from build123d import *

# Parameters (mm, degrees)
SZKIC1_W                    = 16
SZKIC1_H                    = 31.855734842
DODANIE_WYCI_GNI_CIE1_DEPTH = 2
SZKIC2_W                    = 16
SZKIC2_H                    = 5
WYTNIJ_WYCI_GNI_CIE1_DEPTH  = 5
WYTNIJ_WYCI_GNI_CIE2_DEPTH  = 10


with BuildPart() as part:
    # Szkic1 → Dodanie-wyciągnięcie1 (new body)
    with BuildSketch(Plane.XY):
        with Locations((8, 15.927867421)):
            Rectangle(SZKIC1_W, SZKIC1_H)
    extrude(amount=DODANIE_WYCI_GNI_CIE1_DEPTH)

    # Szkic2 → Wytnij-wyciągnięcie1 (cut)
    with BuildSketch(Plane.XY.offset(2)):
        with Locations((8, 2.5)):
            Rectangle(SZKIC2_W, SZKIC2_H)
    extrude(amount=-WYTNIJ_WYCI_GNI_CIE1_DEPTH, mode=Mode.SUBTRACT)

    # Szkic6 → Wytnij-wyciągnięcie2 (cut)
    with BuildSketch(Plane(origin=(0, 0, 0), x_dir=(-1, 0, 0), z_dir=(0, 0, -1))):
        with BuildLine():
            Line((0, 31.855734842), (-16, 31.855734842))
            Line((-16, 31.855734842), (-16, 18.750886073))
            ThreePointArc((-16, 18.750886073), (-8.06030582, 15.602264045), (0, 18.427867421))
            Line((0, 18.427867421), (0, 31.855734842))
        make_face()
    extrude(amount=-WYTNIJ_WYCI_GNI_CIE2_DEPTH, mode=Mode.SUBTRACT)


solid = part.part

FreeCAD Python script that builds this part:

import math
import FreeCAD as App
import Part
import Sketcher

V = App.Vector
Q = App.Units.Quantity

doc = App.newDocument("Part")
body = doc.addObject("PartDesign::Body", "Body")

# Sketch on XY plane
sketch1 = body.newObject("Sketcher::SketchObject", "Sketch")
sketch1.AttachmentSupport = (doc.getObject("XY_Plane"), [""])
sketch1.MapMode = "FlatFace"
sketch1.addGeometry([
    Part.LineSegment(V(0, 31.855735, 0), V(0, 0, 0)),
    Part.LineSegment(V(0, 0, 0), V(16, 0, 0)),
    Part.LineSegment(V(16, 0, 0), V(16, 31.855735, 0)),
    Part.LineSegment(V(16, 31.855735, 0), V(0, 31.855735, 0)),
], False)
sketch1.addConstraint([
    Sketcher.Constraint("Coincident", 0, 2, 1, 1),
    Sketcher.Constraint("Coincident", 1, 2, 2, 1),
    Sketcher.Constraint("Coincident", 2, 2, 3, 1),
    Sketcher.Constraint("Coincident", 3, 2, 0, 1),
    Sketcher.Constraint("Vertical", 0),
    Sketcher.Constraint("Horizontal", 1),
    Sketcher.Constraint("Vertical", 2),
    Sketcher.Constraint("Horizontal", 3),
    Sketcher.Constraint("Coincident", 0, 2, -1, 1),
    Sketcher.Constraint("DistanceX", 1, 1, 1, 2, Q("16 mm")),
    Sketcher.Constraint("DistanceY", 0, 2, 0, 1, Q("31.855735 mm")),
])
pad1 = body.newObject("PartDesign::Pad", "Pad")
pad1.Profile = sketch1
pad1.Length = 2

# Sketch on XY plane
sketch2 = body.newObject("Sketcher::SketchObject", "Sketch001")
sketch2.AttachmentSupport = (doc.getObject("XY_Plane"), [""])
sketch2.MapMode = "FlatFace"
sketch2.AttachmentOffset = App.Placement(V(0, 0, 2), App.Rotation())
sketch2.addGeometry([
    Part.LineSegment(V(0, 5, 0), V(0, 0, 0)),
    Part.LineSegment(V(0, 0, 0), V(16, 0, 0)),
    Part.LineSegment(V(16, 0, 0), V(16, 5, 0)),
    Part.LineSegment(V(16, 5, 0), V(0, 5, 0)),
], False)
sketch2.addConstraint([
    Sketcher.Constraint("Coincident", 0, 2, 1, 1),
    Sketcher.Constraint("Coincident", 1, 2, 2, 1),
    Sketcher.Constraint("Coincident", 2, 2, 3, 1),
    Sketcher.Constraint("Coincident", 3, 2, 0, 1),
    Sketcher.Constraint("Vertical", 0),
    Sketcher.Constraint("Horizontal", 1),
    Sketcher.Constraint("Vertical", 2),
    Sketcher.Constraint("Horizontal", 3),
    Sketcher.Constraint("Coincident", 0, 2, -1, 1),
    Sketcher.Constraint("DistanceX", 1, 1, 1, 2, Q("16 mm")),
    Sketcher.Constraint("DistanceY", 0, 2, 0, 1, Q("5 mm")),
])
pocket1 = body.newObject("PartDesign::Pocket", "Pocket")
pocket1.Profile = sketch2
pocket1.Length = 5

# Sketch on XY plane
sketch3 = body.newObject("Sketcher::SketchObject", "Sketch002")
sketch3.AttachmentSupport = (doc.getObject("XY_Plane"), [""])
sketch3.MapMode = "FlatFace"
sketch3.addGeometry([
    Part.LineSegment(V(0, 31.855735, 0), V(16, 31.855735, 0)),
    Part.LineSegment(V(16, 31.855735, 0), V(16, 18.750886, 0)),
    Part.ArcOfCircle(Part.Circle(V(7.813878, 27.808506, 0), V(0, 0, 1), 12.208729), math.radians(-129.793598), math.radians(-47.893265)),
    Part.LineSegment(V(0, 18.427867, 0), V(0, 31.855735, 0)),
], False)
sketch3.addConstraint([
    Sketcher.Constraint("Coincident", 0, 2, 1, 1),
    Sketcher.Constraint("Coincident", 1, 2, 2, 2),
    Sketcher.Constraint("Coincident", 2, 1, 3, 1),
    Sketcher.Constraint("Coincident", 3, 2, 0, 1),
    Sketcher.Constraint("Horizontal", 0),
    Sketcher.Constraint("Vertical", 1),
    Sketcher.Constraint("Vertical", 3),
    Sketcher.Constraint("PointOnObject", 2, 1, -2),
    Sketcher.Constraint("DistanceX", 0, 1, 0, 2, Q("16 mm")),
    Sketcher.Constraint("Radius", 2, Q("12.208729 mm")),
    Sketcher.Constraint("DistanceY", 1, 2, 1, 1, Q("13.104849 mm")),
    Sketcher.Constraint("DistanceY", 3, 1, 3, 2, Q("13.427867 mm")),
    Sketcher.Constraint("DistanceY", -1, 1, 2, 3, Q("27.808506 mm")),
])
pocket2 = body.newObject("PartDesign::Pocket", "Pocket001")
pocket2.Profile = sketch3
pocket2.Length = 10
pocket2.Reversed = True

doc.recompute()
